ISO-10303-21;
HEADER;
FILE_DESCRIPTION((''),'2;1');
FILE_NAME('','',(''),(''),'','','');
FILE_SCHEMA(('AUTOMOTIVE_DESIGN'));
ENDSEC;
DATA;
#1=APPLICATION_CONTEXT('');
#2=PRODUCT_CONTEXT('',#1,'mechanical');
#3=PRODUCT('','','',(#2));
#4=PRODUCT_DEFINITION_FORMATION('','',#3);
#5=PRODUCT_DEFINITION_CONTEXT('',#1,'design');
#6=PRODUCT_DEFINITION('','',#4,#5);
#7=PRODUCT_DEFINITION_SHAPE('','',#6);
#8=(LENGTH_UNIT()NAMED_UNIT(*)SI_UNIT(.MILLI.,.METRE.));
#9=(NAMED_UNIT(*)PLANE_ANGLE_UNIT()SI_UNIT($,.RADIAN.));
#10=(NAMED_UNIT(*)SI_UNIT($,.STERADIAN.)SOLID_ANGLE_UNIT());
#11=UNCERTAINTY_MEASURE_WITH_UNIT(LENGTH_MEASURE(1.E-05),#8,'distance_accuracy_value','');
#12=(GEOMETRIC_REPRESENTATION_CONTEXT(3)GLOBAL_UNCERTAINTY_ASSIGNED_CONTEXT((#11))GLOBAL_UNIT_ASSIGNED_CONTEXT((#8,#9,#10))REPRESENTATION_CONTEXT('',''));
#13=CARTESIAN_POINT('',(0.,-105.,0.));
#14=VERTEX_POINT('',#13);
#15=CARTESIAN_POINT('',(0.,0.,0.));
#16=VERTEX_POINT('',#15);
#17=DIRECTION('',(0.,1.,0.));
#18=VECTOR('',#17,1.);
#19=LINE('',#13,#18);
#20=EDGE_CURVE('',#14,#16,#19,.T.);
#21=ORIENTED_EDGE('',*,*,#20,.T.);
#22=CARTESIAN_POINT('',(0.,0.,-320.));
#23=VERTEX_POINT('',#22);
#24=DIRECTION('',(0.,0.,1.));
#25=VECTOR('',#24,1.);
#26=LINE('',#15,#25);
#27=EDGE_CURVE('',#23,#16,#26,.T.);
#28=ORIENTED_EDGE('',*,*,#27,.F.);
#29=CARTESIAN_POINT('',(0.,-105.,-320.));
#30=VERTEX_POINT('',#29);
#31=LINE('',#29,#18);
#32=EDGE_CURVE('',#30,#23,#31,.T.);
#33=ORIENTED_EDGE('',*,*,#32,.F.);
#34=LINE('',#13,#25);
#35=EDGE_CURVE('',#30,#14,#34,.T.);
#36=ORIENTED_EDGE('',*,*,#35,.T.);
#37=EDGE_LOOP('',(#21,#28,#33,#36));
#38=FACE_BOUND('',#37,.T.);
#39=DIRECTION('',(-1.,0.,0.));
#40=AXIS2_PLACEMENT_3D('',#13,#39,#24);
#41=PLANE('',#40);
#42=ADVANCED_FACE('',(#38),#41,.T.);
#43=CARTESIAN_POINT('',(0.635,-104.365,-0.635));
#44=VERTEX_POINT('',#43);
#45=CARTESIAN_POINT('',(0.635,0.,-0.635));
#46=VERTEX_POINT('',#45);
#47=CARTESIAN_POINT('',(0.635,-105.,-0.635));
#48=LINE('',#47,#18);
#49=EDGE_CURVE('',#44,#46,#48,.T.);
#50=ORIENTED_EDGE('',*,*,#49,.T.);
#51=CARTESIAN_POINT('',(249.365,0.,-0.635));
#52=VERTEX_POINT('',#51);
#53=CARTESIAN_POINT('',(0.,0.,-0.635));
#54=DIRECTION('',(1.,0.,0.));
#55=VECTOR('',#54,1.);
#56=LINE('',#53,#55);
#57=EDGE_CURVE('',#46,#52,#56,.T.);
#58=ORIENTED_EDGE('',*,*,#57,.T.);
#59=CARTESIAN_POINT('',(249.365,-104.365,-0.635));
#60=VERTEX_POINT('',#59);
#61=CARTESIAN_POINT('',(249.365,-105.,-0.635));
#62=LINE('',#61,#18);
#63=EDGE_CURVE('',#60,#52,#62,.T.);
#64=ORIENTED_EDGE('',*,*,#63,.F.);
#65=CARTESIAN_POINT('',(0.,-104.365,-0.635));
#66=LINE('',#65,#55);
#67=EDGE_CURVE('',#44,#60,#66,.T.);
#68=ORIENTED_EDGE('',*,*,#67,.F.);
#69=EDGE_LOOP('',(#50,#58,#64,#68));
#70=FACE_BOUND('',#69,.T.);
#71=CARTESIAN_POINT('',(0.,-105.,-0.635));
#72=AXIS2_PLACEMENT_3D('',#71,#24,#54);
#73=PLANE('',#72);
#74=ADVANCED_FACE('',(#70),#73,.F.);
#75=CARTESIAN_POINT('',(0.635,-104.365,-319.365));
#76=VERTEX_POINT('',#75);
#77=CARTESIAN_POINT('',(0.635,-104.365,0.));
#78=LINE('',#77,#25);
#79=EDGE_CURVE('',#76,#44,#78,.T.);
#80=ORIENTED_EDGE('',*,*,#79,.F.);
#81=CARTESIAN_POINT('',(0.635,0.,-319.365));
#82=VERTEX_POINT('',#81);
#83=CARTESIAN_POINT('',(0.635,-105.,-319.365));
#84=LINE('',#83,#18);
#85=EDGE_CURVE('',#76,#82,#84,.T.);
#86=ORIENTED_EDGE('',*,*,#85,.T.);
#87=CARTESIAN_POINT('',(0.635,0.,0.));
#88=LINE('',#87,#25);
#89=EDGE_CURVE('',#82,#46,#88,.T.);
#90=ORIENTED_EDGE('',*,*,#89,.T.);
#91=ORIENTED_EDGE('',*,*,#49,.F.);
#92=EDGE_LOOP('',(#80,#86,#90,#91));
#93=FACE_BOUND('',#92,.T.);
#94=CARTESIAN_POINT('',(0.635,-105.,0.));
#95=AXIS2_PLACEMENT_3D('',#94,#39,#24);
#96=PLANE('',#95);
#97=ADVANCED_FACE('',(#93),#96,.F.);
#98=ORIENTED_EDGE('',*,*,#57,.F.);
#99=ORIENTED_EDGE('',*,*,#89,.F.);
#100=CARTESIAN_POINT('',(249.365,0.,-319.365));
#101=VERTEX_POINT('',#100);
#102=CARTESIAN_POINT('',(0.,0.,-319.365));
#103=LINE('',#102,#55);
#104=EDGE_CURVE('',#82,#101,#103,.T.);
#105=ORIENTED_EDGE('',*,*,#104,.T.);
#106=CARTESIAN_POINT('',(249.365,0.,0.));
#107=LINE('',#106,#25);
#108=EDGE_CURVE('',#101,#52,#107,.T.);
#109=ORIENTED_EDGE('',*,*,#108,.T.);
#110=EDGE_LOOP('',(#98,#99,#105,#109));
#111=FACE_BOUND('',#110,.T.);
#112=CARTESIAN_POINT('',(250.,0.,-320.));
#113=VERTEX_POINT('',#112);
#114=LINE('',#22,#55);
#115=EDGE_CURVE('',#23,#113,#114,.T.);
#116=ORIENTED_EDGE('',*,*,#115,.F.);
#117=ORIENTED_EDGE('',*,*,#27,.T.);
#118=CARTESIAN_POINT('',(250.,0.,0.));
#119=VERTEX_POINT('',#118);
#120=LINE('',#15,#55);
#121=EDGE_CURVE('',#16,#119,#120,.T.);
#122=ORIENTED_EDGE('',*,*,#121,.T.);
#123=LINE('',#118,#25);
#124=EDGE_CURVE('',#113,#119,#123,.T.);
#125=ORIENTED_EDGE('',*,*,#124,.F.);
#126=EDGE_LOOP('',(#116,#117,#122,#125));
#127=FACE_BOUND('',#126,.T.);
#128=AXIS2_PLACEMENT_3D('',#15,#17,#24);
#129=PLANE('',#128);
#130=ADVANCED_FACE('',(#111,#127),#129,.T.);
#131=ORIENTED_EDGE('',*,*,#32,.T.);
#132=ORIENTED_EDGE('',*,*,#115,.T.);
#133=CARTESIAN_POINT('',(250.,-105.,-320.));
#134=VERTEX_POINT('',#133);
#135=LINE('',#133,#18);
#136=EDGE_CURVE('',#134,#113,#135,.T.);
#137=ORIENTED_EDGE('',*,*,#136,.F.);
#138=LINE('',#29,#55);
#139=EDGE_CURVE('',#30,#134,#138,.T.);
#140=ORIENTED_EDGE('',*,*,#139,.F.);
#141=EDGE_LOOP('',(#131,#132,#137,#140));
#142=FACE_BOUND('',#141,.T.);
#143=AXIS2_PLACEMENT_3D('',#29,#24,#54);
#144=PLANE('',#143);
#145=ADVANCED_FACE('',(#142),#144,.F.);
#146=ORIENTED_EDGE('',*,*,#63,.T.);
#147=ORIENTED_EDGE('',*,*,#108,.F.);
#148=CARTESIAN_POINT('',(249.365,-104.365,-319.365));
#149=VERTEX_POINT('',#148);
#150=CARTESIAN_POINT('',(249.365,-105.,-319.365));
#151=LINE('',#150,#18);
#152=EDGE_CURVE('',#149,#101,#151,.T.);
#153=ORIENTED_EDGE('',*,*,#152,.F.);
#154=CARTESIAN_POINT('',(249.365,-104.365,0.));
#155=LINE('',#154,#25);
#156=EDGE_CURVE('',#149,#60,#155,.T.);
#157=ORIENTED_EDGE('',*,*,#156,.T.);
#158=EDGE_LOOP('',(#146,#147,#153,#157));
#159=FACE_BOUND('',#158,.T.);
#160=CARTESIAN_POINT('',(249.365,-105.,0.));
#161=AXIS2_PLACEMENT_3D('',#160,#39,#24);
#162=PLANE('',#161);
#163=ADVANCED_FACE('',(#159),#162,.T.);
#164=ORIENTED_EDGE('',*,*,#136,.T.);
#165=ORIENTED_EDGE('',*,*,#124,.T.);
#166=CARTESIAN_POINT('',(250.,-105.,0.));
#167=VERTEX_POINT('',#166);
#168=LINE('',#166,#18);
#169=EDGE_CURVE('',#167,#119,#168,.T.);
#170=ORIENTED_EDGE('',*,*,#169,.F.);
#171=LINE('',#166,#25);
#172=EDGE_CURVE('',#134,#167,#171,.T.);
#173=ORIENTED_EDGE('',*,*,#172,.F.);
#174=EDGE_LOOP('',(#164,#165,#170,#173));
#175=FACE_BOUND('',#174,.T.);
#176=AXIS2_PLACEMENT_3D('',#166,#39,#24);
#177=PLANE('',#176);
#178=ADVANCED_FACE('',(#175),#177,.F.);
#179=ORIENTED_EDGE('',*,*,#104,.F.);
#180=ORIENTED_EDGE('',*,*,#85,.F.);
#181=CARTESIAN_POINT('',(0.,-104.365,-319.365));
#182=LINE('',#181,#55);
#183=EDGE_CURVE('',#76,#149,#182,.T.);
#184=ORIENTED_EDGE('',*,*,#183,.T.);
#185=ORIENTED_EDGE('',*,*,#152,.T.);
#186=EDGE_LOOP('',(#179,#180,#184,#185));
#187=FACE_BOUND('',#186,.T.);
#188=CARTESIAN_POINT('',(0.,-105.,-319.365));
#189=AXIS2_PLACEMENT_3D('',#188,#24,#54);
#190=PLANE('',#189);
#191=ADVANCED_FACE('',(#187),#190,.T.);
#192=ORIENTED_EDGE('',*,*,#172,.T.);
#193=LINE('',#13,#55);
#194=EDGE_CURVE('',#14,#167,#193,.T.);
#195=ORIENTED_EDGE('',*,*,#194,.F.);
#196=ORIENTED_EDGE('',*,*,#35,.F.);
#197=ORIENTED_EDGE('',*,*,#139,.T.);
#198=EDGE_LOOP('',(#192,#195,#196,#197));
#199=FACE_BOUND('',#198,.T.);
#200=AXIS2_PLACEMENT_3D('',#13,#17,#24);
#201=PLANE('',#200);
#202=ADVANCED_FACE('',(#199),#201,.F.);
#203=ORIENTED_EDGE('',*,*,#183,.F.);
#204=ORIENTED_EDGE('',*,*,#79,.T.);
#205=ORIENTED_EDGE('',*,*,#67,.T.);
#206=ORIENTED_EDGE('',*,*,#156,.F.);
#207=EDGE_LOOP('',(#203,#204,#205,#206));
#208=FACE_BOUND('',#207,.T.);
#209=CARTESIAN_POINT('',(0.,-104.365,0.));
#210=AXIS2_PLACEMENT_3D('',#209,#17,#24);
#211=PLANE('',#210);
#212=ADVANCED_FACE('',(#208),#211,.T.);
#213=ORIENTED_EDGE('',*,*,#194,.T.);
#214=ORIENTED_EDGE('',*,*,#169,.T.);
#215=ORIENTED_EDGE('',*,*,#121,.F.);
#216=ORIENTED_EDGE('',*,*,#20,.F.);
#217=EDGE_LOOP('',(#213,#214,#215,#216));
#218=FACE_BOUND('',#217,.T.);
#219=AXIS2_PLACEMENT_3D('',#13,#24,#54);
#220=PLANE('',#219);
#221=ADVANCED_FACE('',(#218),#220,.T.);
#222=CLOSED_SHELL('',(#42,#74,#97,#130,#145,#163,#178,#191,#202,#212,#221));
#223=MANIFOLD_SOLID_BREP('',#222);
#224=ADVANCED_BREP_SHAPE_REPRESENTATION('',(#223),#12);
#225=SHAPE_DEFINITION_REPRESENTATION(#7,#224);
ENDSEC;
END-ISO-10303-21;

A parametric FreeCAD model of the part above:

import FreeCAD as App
import Part
import Sketcher
from FreeCAD import Vector


def faces_at(feature, points):
    """Names of the faces that lie closest to the given points."""
    faces = feature.Shape.Faces
    near = lambda p: min(range(len(faces)), key=lambda i: faces[i].distToShape(Part.Vertex(*p))[0])
    return sorted({f"Face{near(p) + 1}" for p in points})

doc = App.newDocument("Part")
params = doc.addObject("Spreadsheet::Sheet", "Params")
for row, (alias, value) in enumerate([
    ("sketch1_width", "250 mm"),
    ("sketch1_height", "320 mm"),
    ("pad1_length", "105 mm"),
    ("thickness_wall", "0.635 mm"),
], start=1):
    params.set(f"A{row}", alias)
    params.set(f"B{row}", "=" + value)
    params.setAlias(f"B{row}", alias)

body = doc.addObject("PartDesign::Body", "Body")

sketch1 = body.newObject("Sketcher::SketchObject", "Sketch")
sketch1.AttachmentSupport = (doc.getObject("XZ_Plane"), [""])
sketch1.MapMode = "FlatFace"
sketch1.addGeometry([
    Part.LineSegment(Vector(0, -320, 0), Vector(0, 0, 0)),
    Part.LineSegment(Vector(0, 0, 0), Vector(250, 0, 0)),
    Part.LineSegment(Vector(250, 0, 0), Vector(250, -320, 0)),
    Part.LineSegment(Vector(250, -320, 0), Vector(0, -320, 0)),
], False)
sketch1.addConstraint([
    Sketcher.Constraint("Coincident", 0, 2, 1, 1),
    Sketcher.Constraint("Coincident", 1, 2, 2, 1),
    Sketcher.Constraint("Coincident", 2, 2, 3, 1),
    Sketcher.Constraint("Coincident", 3, 2, 0, 1),
    Sketcher.Constraint("Vertical", 0),
    Sketcher.Constraint("Horizontal", 1),
    Sketcher.Constraint("Vertical", 2),
    Sketcher.Constraint("Horizontal", 3),
    Sketcher.Constraint("Coincident", 0, 2, -1, 1),
    Sketcher.Constraint("DistanceX", 1, 1, 1, 2, 250.0),
    Sketcher.Constraint("DistanceY", 0, 1, 0, 2, 320.0),
])
sketch1.setExpression("Constraints[9]", "Params.sketch1_width")
sketch1.setExpression("Constraints[10]", "Params.sketch1_height")
pad1 = body.newObject("PartDesign::Pad", "Pad")
pad1.Profile = sketch1
pad1.setExpression("Length", "Params.pad1_length")
doc.recompute()

thickness = body.newObject("PartDesign::Thickness", "Thickness")
thickness.Base = (pad1, faces_at(pad1, [(125, 0, -160)]))
thickness.setExpression("Value", "Params.thickness_wall")
thickness.Reversed = True
thickness.Join = "Intersection"

doc.recompute()
